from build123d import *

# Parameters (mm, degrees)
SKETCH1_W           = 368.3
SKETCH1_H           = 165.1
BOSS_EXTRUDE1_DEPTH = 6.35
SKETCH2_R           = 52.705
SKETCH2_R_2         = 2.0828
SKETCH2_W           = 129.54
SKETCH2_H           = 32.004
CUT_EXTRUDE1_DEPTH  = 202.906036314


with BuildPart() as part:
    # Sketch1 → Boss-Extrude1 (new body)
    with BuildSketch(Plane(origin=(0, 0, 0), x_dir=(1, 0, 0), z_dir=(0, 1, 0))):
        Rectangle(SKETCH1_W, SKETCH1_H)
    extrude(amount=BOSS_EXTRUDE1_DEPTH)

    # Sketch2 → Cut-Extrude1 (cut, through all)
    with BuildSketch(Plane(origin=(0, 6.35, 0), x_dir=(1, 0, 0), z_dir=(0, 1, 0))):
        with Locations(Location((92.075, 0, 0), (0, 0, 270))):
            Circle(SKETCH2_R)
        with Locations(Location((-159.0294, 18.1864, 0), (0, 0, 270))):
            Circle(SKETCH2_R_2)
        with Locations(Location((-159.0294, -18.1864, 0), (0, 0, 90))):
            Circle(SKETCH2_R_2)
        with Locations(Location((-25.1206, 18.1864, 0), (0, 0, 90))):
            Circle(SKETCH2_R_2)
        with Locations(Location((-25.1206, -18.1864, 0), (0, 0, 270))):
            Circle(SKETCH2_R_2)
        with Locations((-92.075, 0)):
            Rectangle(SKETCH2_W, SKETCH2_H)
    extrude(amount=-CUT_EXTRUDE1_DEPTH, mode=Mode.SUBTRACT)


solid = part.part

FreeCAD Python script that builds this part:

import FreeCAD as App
import Part
import Sketcher
Q = App.Units.Quantity


def add_polygon(sketch, points):
    """Adds a closed chain of lines whose ends are joined by coincident constraints."""
    first, n = sketch.GeometryCount, len(points)
    for a, b in zip(points, points[1:] + points[:1]):
        sketch.addGeometry(Part.LineSegment(App.Vector(*a, 0), App.Vector(*b, 0)), False)
    for i in range(n):
        sketch.addConstraint(Sketcher.Constraint("Coincident", first + i, 2, first + (i + 1) % n, 1))

doc = App.newDocument("Part")
params = doc.addObject("Spreadsheet::Sheet", "Params")
for row, (alias, value) in enumerate([
    ("sketch1_width", "14.5 in"),
    ("sketch1_height", "6.5 in"),
    ("pad1_length", "0.25 in"),
    ("sketch2_diameter", "4.15 in"),
    ("sketch2_diameter2", "0.164 in"),
    ("sketch2_width", "5.1 in"),
    ("sketch2_height", "1.26 in"),
], start=1):
    params.set(f"A{row}", alias)
    params.set(f"B{row}", "=" + value)
    params.setAlias(f"B{row}", alias)

body = doc.addObject("PartDesign::Body", "Body")

sketch1 = body.newObject("Sketcher::SketchObject", "Sketch")
sketch1.AttachmentSupport = (doc.getObject("XZ_Plane"), [""])
sketch1.MapMode = "FlatFace"
add_polygon(sketch1, [(-184, -83), (-184, 83), (184, 83), (184, -83)])
sketch1.addConstraint([
    Sketcher.Constraint("Vertical", 0),
    Sketcher.Constraint("Horizontal", 1),
    Sketcher.Constraint("Vertical", 2),
    Sketcher.Constraint("Horizontal", 3),
    Sketcher.Constraint("Symmetric", 0, 2, 2, 2, -1, 1),
    Sketcher.Constraint("DistanceX", 1, 1, 1, 2, Q("14.5 in")),
    Sketcher.Constraint("DistanceY", 0, 1, 0, 2, Q("6.5 in")),
])
sketch1.setExpression("Constraints[9]", "Params.sketch1_width")
sketch1.setExpression("Constraints[10]", "Params.sketch1_height")
pad1 = body.newObject("PartDesign::Pad", "Pad")
pad1.Profile = sketch1
pad1.setExpression("Length", "Params.pad1_length")
pad1.Reversed = True

sketch2 = body.newObject("Sketcher::SketchObject", "Sketch001")
sketch2.AttachmentSupport = (doc.getObject("XZ_Plane"), [""])
sketch2.MapMode = "FlatFace"
sketch2.AttachmentOffset = App.Placement(App.Vector(0, 0, -0.25 * 25.4), App.Rotation())
sketch2.addGeometry(Part.Circle(App.Vector(92.1, 0, 0), App.Vector(0, 0, 1), 52.7), False)
sketch2.addGeometry(Part.Circle(App.Vector(-159, -18.2, 0), App.Vector(0, 0, 1), 2.1), False)
sketch2.addGeometry(Part.Circle(App.Vector(-159, 18.2, 0), App.Vector(0, 0, 1), 2.1), False)
sketch2.addGeometry(Part.Circle(App.Vector(-25.1, -18.2, 0), App.Vector(0, 0, 1), 2.1), False)
sketch2.addGeometry(Part.Circle(App.Vector(-25.1, 18.2, 0), App.Vector(0, 0, 1), 2.1), False)
add_polygon(sketch2, [(-156.8, -16), (-156.8, 16), (-27.3, 16), (-27.3, -16)])
sketch2.addConstraint([
    Sketcher.Constraint("Vertical", 5),
    Sketcher.Constraint("Horizontal", 6),
    Sketcher.Constraint("Vertical", 7),
    Sketcher.Constraint("Horizontal", 8),
    Sketcher.Constraint("Equal", 1, 2),
    Sketcher.Constraint("Equal", 2, 3),
    Sketcher.Constraint("Equal", 3, 4),
    Sketcher.Constraint("Symmetric", 1, 3, 2, 3, -1),
    Sketcher.Constraint("Symmetric", 3, 3, 4, 3, -1),
    Sketcher.Constraint("PointOnObject", 0, 3, -1),
    Sketcher.Constraint("Horizontal", 1, 3, 3, 3),
    Sketcher.Constraint("Diameter", 0, Q("4.15 in")),
    Sketcher.Constraint("Diameter", 1, Q("0.164 in")),
    Sketcher.Constraint("DistanceX", 6, 1, 6, 2, Q("5.1 in")),
    Sketcher.Constraint("DistanceY", 5, 1, 5, 2, Q("1.26 in")),
    Sketcher.Constraint("DistanceX", 5, 2, 0, 3, Q("9.8 in")),
    Sketcher.Constraint("DistanceY", -1, 1, 5, 2, Q("0.63 in")),
    Sketcher.Constraint("DistanceX", -1, 1, 0, 3, Q("3.625 in")),
    Sketcher.Constraint("DistanceX", 1, 3, -1, 1, Q("6.261 in")),
    Sketcher.Constraint("DistanceY", 1, 3, -1, 1, Q("0.716 in")),
    Sketcher.Constraint("DistanceX", 3, 3, -1, 1, Q("0.989 in")),
])
sketch2.setExpression("Constraints[15]", "Params.sketch2_diameter")
sketch2.setExpression("Constraints[16]", "Params.sketch2_diameter2")
sketch2.setExpression("Constraints[17]", "Params.sketch2_width")
sketch2.setExpression("Constraints[18]", "Params.sketch2_height")
pocket1 = body.newObject("PartDesign::Pocket", "Pocket")
pocket1.Profile = sketch2
pocket1.Type = "ThroughAll"
pocket1.Reversed = True

doc.recompute()
